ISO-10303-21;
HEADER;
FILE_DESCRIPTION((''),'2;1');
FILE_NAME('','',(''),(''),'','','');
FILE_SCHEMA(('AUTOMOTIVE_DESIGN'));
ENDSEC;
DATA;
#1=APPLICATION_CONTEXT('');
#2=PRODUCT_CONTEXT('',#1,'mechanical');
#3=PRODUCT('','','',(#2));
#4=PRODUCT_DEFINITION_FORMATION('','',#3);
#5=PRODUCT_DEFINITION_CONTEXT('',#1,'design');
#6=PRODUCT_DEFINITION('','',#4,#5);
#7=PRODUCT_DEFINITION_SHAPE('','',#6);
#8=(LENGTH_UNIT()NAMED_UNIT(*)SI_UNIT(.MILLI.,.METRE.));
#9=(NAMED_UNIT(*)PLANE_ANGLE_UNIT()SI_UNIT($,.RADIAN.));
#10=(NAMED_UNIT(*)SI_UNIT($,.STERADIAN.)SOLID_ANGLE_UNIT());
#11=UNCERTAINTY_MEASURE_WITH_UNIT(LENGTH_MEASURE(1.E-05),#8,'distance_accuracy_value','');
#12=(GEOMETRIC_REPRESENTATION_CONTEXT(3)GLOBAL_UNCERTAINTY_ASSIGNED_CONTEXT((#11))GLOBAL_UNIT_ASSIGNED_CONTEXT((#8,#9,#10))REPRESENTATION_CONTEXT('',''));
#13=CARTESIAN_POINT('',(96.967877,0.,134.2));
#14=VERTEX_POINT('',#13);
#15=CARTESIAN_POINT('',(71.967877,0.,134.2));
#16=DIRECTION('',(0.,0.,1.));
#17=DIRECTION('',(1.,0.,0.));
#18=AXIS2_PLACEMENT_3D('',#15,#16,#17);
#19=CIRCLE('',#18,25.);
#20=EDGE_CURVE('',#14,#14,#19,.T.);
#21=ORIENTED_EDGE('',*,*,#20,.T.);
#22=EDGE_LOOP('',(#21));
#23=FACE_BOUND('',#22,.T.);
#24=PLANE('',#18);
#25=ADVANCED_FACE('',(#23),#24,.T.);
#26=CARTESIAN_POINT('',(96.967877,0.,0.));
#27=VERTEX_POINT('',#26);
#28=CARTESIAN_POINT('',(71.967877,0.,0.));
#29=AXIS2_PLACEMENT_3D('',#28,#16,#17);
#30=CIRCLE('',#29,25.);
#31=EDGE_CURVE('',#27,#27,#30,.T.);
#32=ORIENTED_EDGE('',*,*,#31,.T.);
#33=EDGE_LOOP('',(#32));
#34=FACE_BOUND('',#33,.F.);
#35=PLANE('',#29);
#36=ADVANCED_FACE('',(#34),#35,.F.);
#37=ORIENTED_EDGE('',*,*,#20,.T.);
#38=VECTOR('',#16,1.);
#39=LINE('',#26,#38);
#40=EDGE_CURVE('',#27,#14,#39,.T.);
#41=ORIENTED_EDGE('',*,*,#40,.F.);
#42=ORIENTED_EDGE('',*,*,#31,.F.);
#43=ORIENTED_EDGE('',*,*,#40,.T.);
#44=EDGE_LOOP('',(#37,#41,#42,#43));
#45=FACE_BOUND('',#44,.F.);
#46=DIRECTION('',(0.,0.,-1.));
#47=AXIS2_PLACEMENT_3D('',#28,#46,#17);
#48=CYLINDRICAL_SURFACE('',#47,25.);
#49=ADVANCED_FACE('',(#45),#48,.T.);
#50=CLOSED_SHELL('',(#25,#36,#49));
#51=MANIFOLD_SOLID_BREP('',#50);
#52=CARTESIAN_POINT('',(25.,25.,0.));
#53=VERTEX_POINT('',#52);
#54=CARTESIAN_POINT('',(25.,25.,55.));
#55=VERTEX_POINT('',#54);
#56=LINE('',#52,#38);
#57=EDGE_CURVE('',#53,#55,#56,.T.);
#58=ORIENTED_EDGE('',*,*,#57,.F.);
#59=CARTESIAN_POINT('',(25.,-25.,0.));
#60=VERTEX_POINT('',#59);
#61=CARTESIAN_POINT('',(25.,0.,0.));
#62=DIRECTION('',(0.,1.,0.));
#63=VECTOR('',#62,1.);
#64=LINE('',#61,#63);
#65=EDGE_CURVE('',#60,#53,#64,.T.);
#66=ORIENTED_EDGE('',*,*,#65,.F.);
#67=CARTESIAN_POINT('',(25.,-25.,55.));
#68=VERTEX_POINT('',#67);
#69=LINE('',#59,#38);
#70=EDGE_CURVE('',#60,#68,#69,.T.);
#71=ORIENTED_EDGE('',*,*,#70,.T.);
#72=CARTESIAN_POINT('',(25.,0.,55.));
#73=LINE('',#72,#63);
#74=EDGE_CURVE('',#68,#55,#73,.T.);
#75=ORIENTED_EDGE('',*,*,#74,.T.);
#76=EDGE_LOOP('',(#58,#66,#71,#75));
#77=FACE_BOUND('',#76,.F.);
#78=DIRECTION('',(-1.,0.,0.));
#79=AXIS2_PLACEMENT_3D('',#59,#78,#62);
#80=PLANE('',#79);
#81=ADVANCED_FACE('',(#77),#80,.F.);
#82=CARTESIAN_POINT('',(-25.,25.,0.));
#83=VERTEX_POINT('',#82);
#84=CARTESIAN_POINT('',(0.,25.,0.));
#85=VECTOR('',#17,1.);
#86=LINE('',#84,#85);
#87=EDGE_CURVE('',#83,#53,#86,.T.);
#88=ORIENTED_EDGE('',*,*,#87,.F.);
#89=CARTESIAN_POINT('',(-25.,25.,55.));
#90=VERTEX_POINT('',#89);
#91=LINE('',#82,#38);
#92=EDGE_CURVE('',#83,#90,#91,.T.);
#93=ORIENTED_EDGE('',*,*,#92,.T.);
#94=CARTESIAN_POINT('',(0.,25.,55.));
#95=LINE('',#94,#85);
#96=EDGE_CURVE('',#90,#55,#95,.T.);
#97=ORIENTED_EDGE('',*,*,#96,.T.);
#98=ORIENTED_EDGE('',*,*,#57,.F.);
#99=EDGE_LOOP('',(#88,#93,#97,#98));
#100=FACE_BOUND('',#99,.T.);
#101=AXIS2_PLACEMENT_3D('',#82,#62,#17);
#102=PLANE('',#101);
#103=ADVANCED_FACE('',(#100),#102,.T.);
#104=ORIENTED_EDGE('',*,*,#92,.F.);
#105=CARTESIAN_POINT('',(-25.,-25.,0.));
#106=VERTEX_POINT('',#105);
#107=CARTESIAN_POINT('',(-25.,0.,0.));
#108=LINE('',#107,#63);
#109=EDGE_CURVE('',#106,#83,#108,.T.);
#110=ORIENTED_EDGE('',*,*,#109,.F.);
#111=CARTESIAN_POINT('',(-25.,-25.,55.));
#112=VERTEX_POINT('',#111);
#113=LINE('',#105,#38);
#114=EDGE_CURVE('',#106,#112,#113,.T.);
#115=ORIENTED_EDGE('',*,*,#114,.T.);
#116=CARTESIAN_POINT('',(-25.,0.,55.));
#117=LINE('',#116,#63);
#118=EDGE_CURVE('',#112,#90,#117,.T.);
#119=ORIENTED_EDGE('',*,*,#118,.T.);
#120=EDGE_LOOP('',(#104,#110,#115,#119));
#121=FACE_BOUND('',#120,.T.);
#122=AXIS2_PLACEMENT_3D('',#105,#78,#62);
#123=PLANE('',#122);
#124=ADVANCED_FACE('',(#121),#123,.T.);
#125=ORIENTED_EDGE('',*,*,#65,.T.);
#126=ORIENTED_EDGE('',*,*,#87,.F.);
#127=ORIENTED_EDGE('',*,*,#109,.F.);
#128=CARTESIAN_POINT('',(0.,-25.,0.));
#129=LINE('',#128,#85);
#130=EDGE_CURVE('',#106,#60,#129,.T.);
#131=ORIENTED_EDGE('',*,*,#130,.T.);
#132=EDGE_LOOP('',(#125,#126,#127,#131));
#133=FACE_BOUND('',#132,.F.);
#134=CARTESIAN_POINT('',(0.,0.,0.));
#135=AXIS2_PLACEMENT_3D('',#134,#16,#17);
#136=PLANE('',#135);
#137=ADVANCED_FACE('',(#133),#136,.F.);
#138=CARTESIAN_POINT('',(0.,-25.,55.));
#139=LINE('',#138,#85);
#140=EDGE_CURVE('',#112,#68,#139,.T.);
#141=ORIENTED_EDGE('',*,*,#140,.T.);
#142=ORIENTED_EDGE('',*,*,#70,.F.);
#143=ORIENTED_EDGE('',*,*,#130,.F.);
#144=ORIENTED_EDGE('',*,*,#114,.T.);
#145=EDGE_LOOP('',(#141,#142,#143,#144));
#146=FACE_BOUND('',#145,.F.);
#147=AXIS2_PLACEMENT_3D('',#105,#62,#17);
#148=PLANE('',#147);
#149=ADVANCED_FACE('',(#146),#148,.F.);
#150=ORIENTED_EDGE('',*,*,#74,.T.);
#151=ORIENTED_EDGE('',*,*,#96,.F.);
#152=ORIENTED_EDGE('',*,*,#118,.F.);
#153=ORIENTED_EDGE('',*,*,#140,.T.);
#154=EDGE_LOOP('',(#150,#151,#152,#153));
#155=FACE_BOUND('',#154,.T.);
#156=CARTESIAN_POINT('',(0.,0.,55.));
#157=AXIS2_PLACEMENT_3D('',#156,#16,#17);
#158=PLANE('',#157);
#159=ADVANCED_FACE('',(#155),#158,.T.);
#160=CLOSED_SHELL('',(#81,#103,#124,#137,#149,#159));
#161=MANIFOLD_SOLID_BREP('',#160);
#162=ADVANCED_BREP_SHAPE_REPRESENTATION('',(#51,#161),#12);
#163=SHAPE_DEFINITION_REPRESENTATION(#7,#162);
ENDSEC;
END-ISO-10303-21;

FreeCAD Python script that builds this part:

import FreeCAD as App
import Part
import Sketcher
from FreeCAD import Vector

doc = App.newDocument("Part")
body = doc.addObject("PartDesign::Body", "Body")

# Sketch on XY plane
sketch1 = doc.addObject("Sketcher::SketchObject", "Sketch")
body.addObject(sketch1)
sketch1.AttachmentSupport = (doc.XY_Plane, [""])
sketch1.MapMode = "FlatFace"
sketch1.addGeometry(Part.LineSegment(Vector(-25, 25, 0), Vector(-25, -25, 0)), False)
sketch1.addGeometry(Part.LineSegment(Vector(-25, -25, 0), Vector(25, -25, 0)), False)
sketch1.addGeometry(Part.LineSegment(Vector(25, -25, 0), Vector(25, 25, 0)), False)
sketch1.addGeometry(Part.LineSegment(Vector(25, 25, 0), Vector(-25, 25, 0)), False)
sketch1.addConstraint(Sketcher.Constraint("Coincident", 0, 2, 1, 1))
sketch1.addConstraint(Sketcher.Constraint("Coincident", 1, 2, 2, 1))
sketch1.addConstraint(Sketcher.Constraint("Coincident", 2, 2, 3, 1))
sketch1.addConstraint(Sketcher.Constraint("Coincident", 3, 2, 0, 1))
sketch1.addConstraint(Sketcher.Constraint("Vertical", 0))
sketch1.addConstraint(Sketcher.Constraint("Horizontal", 1))
sketch1.addConstraint(Sketcher.Constraint("Vertical", 2))
sketch1.addConstraint(Sketcher.Constraint("Horizontal", 3))
sketch1.addConstraint(Sketcher.Constraint("Symmetric", 0, 2, 2, 2, -1, 1))
sketch1.addConstraint(Sketcher.Constraint("Equal", 3, 0))
sketch1.addConstraint(Sketcher.Constraint("DistanceX", 1, 1, 1, 2, 50.0))
pad1 = doc.addObject("PartDesign::Pad", "Pad")
body.addObject(pad1)
pad1.Profile = sketch1
pad1.Length = 55
body2 = doc.addObject("PartDesign::Body", "Body001")

# Sketch on XY plane
sketch2 = doc.addObject("Sketcher::SketchObject", "Sketch001")
body2.addObject(sketch2)
sketch2.AttachmentSupport = (doc.getObject("XY_Plane001"), [""])
sketch2.MapMode = "FlatFace"
sketch2.addGeometry(Part.Circle(Vector(72, 0, 0), Vector(0, 0, 1), 25), False)
sketch2.addConstraint(Sketcher.Constraint("PointOnObject", 0, 3, -1))
sketch2.addConstraint(Sketcher.Constraint("Diameter", 0, 50.0))
sketch2.addConstraint(Sketcher.Constraint("DistanceX", -1, 1, 0, 3, 71.967877))
pad2 = doc.addObject("PartDesign::Pad", "Pad001")
body2.addObject(pad2)
pad2.Profile = sketch2
pad2.Length = 134.2

doc.recompute()
